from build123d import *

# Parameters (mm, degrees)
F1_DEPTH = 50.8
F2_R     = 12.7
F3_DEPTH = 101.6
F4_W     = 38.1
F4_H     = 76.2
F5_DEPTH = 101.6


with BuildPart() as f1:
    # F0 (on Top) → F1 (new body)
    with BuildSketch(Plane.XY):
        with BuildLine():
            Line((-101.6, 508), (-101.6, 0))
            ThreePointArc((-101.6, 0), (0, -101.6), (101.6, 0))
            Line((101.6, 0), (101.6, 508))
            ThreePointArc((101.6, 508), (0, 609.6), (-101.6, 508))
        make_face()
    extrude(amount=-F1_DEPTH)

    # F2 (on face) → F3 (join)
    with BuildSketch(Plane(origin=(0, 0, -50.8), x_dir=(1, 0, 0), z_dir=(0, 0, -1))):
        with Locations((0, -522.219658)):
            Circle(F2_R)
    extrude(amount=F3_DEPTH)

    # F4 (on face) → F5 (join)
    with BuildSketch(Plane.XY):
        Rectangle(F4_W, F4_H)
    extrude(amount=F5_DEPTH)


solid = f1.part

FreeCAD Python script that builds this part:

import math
import FreeCAD as App
import Part
import Sketcher
from FreeCAD import Vector
Q = App.Units.Quantity


def add_polygon(sketch, points):
    """Adds a closed chain of lines whose ends are joined by coincident constraints."""
    first, n = sketch.GeometryCount, len(points)
    for a, b in zip(points, points[1:] + points[:1]):
        sketch.addGeometry(Part.LineSegment(App.Vector(*a, 0), App.Vector(*b, 0)), False)
    for i in range(n):
        sketch.addConstraint(Sketcher.Constraint("Coincident", first + i, 2, first + (i + 1) % n, 1))

doc = App.newDocument("Part")
body = doc.addObject("PartDesign::Body", "Body")

sketch1 = body.newObject("Sketcher::SketchObject", "Sketch")
sketch1.AttachmentSupport = (doc.getObject("XY_Plane"), [""])
sketch1.MapMode = "FlatFace"
sketch1.addGeometry(Part.LineSegment(Vector(-101.6, 508, 0), Vector(-101.6, 0, 0)), False)
sketch1.addGeometry(Part.ArcOfCircle(Part.Circle(Vector(0, 0, 0), Vector(0, 0, 1), 101.6), math.radians(180), math.radians(360)), False)
sketch1.addGeometry(Part.LineSegment(Vector(101.6, 0, 0), Vector(101.6, 508, 0)), False)
sketch1.addGeometry(Part.ArcOfCircle(Part.Circle(Vector(0, 508, 0), Vector(0, 0, 1), 101.6), math.radians(0), math.radians(180)), False)
sketch1.addConstraint(Sketcher.Constraint("Tangent", 0, 2, 1, 1))
sketch1.addConstraint(Sketcher.Constraint("Tangent", 1, 2, 2, 1))
sketch1.addConstraint(Sketcher.Constraint("Tangent", 2, 2, 3, 1))
sketch1.addConstraint(Sketcher.Constraint("Tangent", 3, 2, 0, 1))
sketch1.addConstraint(Sketcher.Constraint("Vertical", 0))
sketch1.addConstraint(Sketcher.Constraint("Vertical", 2))
sketch1.addConstraint(Sketcher.Constraint("Coincident", 1, 3, -1, 1))
sketch1.addConstraint(Sketcher.Constraint("Radius", 1, Q("4 in")))
sketch1.addConstraint(Sketcher.Constraint("DistanceY", 0, 2, 0, 1, Q("20 in")))
pad1 = body.newObject("PartDesign::Pad", "Pad")
pad1.Profile = sketch1
pad1.Length = Q("2 in")
pad1.Reversed = True

sketch2 = body.newObject("Sketcher::SketchObject", "Sketch001")
sketch2.AttachmentSupport = (doc.getObject("XY_Plane"), [""])
sketch2.MapMode = "FlatFace"
sketch2.AttachmentOffset = App.Placement(Vector(0, 0, -2 * 25.4), App.Rotation())
sketch2.addGeometry(Part.Circle(Vector(0, 522.219658, 0), Vector(0, 0, 1), 12.7), False)
sketch2.addConstraint(Sketcher.Constraint("PointOnObject", 0, 3, -2))
sketch2.addConstraint(Sketcher.Constraint("Diameter", 0, Q("1 in")))
sketch2.addConstraint(Sketcher.Constraint("DistanceY", -1, 1, 0, 3, Q("522.219658 mm")))
pad2 = body.newObject("PartDesign::Pad", "Pad001")
pad2.Profile = sketch2
pad2.Length = Q("4 in")
pad2.Reversed = True

sketch3 = body.newObject("Sketcher::SketchObject", "Sketch002")
sketch3.AttachmentSupport = (doc.getObject("XY_Plane"), [""])
sketch3.MapMode = "FlatFace"
add_polygon(sketch3, [(-19.05, 38.1), (-19.05, -38.1), (19.05, -38.1), (19.05, 38.1)])
sketch3.addConstraint(Sketcher.Constraint("Vertical", 0))
sketch3.addConstraint(Sketcher.Constraint("Horizontal", 1))
sketch3.addConstraint(Sketcher.Constraint("Vertical", 2))
sketch3.addConstraint(Sketcher.Constraint("Horizontal", 3))
sketch3.addConstraint(Sketcher.Constraint("Symmetric", 0, 2, 2, 2, -1, 1))
sketch3.addConstraint(Sketcher.Constraint("DistanceY", 0, 2, 0, 1, Q("3 in")))
sketch3.addConstraint(Sketcher.Constraint("DistanceX", 1, 1, 1, 2, Q("1.5 in")))
pad3 = body.newObject("PartDesign::Pad", "Pad002")
pad3.Profile = sketch3
pad3.Length = Q("4 in")

doc.recompute()
